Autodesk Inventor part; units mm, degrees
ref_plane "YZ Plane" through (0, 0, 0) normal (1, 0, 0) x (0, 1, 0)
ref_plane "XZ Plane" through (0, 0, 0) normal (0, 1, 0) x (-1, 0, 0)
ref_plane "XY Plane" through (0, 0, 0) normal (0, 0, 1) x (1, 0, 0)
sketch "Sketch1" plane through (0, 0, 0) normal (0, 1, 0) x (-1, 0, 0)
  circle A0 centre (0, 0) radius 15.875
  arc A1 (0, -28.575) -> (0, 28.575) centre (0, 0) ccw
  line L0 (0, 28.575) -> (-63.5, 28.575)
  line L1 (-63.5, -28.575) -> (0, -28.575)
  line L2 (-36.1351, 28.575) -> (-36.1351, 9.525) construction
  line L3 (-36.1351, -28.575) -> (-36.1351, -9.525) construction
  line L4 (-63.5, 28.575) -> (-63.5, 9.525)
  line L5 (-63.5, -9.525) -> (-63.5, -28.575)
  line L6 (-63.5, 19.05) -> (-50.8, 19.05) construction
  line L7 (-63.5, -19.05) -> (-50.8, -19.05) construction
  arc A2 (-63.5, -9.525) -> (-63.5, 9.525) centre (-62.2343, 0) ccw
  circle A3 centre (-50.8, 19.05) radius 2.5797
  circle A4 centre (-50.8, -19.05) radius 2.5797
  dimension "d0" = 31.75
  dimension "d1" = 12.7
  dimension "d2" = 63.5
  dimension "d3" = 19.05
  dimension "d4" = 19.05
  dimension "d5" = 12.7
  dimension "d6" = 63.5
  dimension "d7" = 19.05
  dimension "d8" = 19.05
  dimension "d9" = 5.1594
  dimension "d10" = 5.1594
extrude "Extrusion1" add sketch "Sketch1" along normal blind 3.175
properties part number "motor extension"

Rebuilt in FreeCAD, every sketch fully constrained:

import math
import FreeCAD as App
import Part
import Sketcher
Q = App.Units.Quantity

doc = App.newDocument("Part")
body = doc.addObject("PartDesign::Body", "Body")

# Sketch on XZ plane
sketch1 = body.newObject("Sketcher::SketchObject", "Sketch")
sketch1.AttachmentSupport = (doc.getObject("XZ_Plane"), [""])
sketch1.MapMode = "FlatFace"
sketch1.addGeometry([
    Part.LineSegment(App.Vector(63.5, -28.6, 0), App.Vector(0, -28.6, 0)),  # 0
    Part.ArcOfCircle(Part.Circle(App.Vector(0, 0, 0), App.Vector(0, 0, 1), 28.6), math.radians(90), math.radians(270)),  # 1
    Part.LineSegment(App.Vector(0, 28.6, 0), App.Vector(63.5, 28.6, 0)),  # 2
    Part.LineSegment(App.Vector(63.5, 28.6, 0), App.Vector(63.5, 9.5, 0)),  # 3
    Part.ArcOfCircle(Part.Circle(App.Vector(62.2, 0, 0), App.Vector(0, 0, 1), 9.6), math.radians(82), math.radians(278)),  # 4
    Part.LineSegment(App.Vector(63.5, -9.5, 0), App.Vector(63.5, -28.6, 0)),  # 5
    Part.Circle(App.Vector(50.8, -19.1, 0), App.Vector(0, 0, 1), 2.6),  # 6
    Part.Circle(App.Vector(50.8, 19.1, 0), App.Vector(0, 0, 1), 2.6),  # 7
    Part.Circle(App.Vector(0, 0, 0), App.Vector(0, 0, 1), 15.9),  # 8
], False)
sketch1.addConstraint([
    Sketcher.Constraint("Tangent", 0, 2, 1, 2),
    Sketcher.Constraint("Tangent", 1, 1, 2, 1),
    Sketcher.Constraint("Coincident", 2, 2, 3, 1),
    Sketcher.Constraint("Coincident", 3, 2, 4, 1),
    Sketcher.Constraint("Coincident", 4, 2, 5, 1),
    Sketcher.Constraint("Coincident", 5, 2, 0, 1),
    Sketcher.Constraint("Horizontal", 0),
    Sketcher.Constraint("Horizontal", 2),
    Sketcher.Constraint("Vertical", 3),
    Sketcher.Constraint("Vertical", 5),
    Sketcher.Constraint("Coincident", 1, 3, -1, 1),
    Sketcher.Constraint("Coincident", 8, 3, -1, 1),
    Sketcher.Constraint("Equal", 6, 7),
    Sketcher.Constraint("Symmetric", 6, 3, 7, 3, -1),
    Sketcher.Constraint("Symmetric", 3, 2, 4, 2, -1),
    Sketcher.Constraint("Diameter", 8, Q("1.25 in")),
    Sketcher.Constraint("Diameter", 6, Q("0.203126 in")),
    Sketcher.Constraint("DistanceX", 0, 2, 0, 1, Q("2.5 in")),
    Sketcher.Constraint("DistanceY", 3, 2, 3, 1, Q("0.75 in")),
    Sketcher.Constraint("DistanceX", 7, 3, 2, 2, Q("0.5 in")),
    Sketcher.Constraint("DistanceY", 6, 3, -1, 1, Q("0.75 in")),
    Sketcher.Constraint("DistanceY", 4, 2, 3, 2, Q("0.75 in")),
    Sketcher.Constraint("Radius", 4, Q("0.3783 in")),
])
pad1 = body.newObject("PartDesign::Pad", "Pad")
pad1.Profile = sketch1
pad1.Length = Q("0.125 in")
pad1.Reversed = True

doc.recompute()
